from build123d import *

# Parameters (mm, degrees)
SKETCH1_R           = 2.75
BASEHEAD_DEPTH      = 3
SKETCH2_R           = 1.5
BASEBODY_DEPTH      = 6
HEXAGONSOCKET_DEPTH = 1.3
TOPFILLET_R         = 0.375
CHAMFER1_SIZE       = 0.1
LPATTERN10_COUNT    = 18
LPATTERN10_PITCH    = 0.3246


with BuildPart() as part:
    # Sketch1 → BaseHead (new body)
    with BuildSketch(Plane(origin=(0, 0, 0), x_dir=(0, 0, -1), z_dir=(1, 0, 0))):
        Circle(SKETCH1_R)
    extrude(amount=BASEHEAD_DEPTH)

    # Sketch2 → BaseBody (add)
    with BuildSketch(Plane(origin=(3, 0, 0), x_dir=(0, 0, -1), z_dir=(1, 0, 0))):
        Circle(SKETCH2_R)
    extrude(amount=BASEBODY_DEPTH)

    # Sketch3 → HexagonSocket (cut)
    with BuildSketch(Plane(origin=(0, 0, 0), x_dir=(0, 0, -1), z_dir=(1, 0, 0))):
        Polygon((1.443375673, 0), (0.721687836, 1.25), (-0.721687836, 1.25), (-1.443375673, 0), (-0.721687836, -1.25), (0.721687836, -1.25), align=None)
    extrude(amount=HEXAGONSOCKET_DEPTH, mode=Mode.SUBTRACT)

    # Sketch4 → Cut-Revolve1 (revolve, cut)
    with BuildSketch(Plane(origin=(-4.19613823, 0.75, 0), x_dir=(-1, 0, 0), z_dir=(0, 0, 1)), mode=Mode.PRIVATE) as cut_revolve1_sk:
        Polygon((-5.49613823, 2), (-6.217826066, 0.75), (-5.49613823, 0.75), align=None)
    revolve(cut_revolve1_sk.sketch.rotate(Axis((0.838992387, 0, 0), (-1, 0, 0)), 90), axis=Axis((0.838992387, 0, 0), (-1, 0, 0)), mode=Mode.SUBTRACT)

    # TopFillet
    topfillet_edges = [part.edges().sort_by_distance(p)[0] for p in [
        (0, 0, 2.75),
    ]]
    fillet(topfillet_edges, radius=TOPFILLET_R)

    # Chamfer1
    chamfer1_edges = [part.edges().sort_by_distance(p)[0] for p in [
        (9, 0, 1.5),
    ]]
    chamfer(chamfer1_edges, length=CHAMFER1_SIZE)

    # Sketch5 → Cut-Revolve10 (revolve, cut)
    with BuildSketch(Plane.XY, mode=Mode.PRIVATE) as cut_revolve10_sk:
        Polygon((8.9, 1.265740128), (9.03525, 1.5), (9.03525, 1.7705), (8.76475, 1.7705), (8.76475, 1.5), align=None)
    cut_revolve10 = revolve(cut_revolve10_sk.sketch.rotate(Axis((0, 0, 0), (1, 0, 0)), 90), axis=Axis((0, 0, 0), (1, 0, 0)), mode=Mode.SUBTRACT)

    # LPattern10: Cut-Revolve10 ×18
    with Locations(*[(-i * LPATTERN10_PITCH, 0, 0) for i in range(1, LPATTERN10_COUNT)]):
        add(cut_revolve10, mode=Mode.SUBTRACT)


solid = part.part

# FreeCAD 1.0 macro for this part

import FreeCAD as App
import Part
import Sketcher

V = App.Vector
Q = App.Units.Quantity


def edges_at(feature, points):
    """Names of the edges that pass closest to the given points."""
    edges = feature.Shape.Edges
    near = lambda p: min(range(len(edges)), key=lambda i: edges[i].distToShape(Part.Vertex(*p))[0])
    return sorted({f"Edge{near(p) + 1}" for p in points})


def add_polygon(sketch, points):
    """Adds a closed chain of lines whose ends are joined by coincident constraints."""
    first, n = sketch.GeometryCount, len(points)
    for a, b in zip(points, points[1:] + points[:1]):
        sketch.addGeometry(Part.LineSegment(App.Vector(*a, 0), App.Vector(*b, 0)), False)
    for i in range(n):
        sketch.addConstraint(Sketcher.Constraint("Coincident", first + i, 2, first + (i + 1) % n, 1))

doc = App.newDocument("Part")
body = doc.addObject("PartDesign::Body", "Body")

sketch1 = body.newObject("Sketcher::SketchObject", "Sketch")
sketch1.AttachmentSupport = (doc.getObject("YZ_Plane"), [""])
sketch1.MapMode = "FlatFace"
sketch1.addGeometry(Part.Circle(V(0, 0, 0), V(0, 0, 1), 2.8), False)
sketch1.addConstraint([
    Sketcher.Constraint("Coincident", 0, 3, -1, 1),
    Sketcher.Constraint("Diameter", 0, Q("5.5 mm")),
])
pad1 = body.newObject("PartDesign::Pad", "Pad")
pad1.Profile = sketch1
pad1.Length = 3

sketch2 = body.newObject("Sketcher::SketchObject", "Sketch001")
sketch2.AttachmentSupport = (doc.getObject("YZ_Plane"), [""])
sketch2.MapMode = "FlatFace"
sketch2.AttachmentOffset = App.Placement(V(0, 0, 3), App.Rotation())
sketch2.addGeometry(Part.Circle(V(0, 0, 0), V(0, 0, 1), 1.5), False)
sketch2.addConstraint([
    Sketcher.Constraint("Coincident", 0, 3, -1, 1),
    Sketcher.Constraint("Diameter", 0, Q("3 mm")),
])
pad2 = body.newObject("PartDesign::Pad", "Pad001")
pad2.Profile = sketch2
pad2.Length = 6

sketch3 = body.newObject("Sketcher::SketchObject", "Sketch002")
sketch3.AttachmentSupport = (doc.getObject("YZ_Plane"), [""])
sketch3.MapMode = "FlatFace"
add_polygon(sketch3, [(0, -1.4), (1.2, -0.7), (1.2, 0.7), (0, 1.4), (-1.2, 0.7), (-1.2, -0.7)])
sketch3.addConstraint([
    Sketcher.Constraint("Vertical", 1),
    Sketcher.Constraint("Vertical", 4),
    Sketcher.Constraint("Symmetric", 0, 2, 3, 2, -1, 1),
    Sketcher.Constraint("Symmetric", 2, 2, 5, 2, -1, 1),
    Sketcher.Constraint("PointOnObject", 2, 2, -2),
    Sketcher.Constraint("Parallel", 2, 5),
    Sketcher.Constraint("Horizontal", 1, 2, 3, 2),
    Sketcher.Constraint("Angle", 0, Q("30 deg")),
    Sketcher.Constraint("DistanceX", 3, 2, 1, 2, Q("2.5 mm")),
    Sketcher.Constraint("DistanceY", 1, 1, 1, 2, Q("1.443376 mm")),
])
pocket1 = body.newObject("PartDesign::Pocket", "Pocket")
pocket1.Profile = sketch3
pocket1.Length = 1.3
pocket1.Reversed = True

sketch4 = body.newObject("Sketcher::SketchObject", "Sketch003")
sketch4.AttachmentSupport = (doc.getObject("XY_Plane"), [""])
sketch4.MapMode = "FlatFace"
add_polygon(sketch4, [(1.3, -1.2), (2, 0), (1.3, 0)])
sketch4.addConstraint([
    Sketcher.Constraint("Horizontal", 1),
    Sketcher.Constraint("Vertical", 2),
    Sketcher.Constraint("PointOnObject", 0, 2, -1),
    Sketcher.Constraint("Angle", 0, Q("60 deg")),
    Sketcher.Constraint("DistanceY", 2, 2, 2, 1, Q("1.25 mm")),
    Sketcher.Constraint("DistanceX", -1, 1, 1, 2, Q("1.3 mm")),
])
groove = body.newObject("PartDesign::Groove", "Groove")
groove.Profile = sketch4
groove.ReferenceAxis = (sketch4, ["H_Axis"])
groove.Angle = 360
doc.recompute()

fillet = body.newObject("PartDesign::Fillet", "Fillet")
fillet.Base = (groove, edges_at(groove, [(0, 0, 2.75)]))
fillet.Radius = 0.375
doc.recompute()

chamfer = body.newObject("PartDesign::Chamfer", "Chamfer")
chamfer.Base = (fillet, edges_at(fillet, [(9, 0, 1.5)]))
chamfer.Size = 0.1

sketch5 = body.newObject("Sketcher::SketchObject", "Sketch004")
sketch5.AttachmentSupport = (doc.getObject("XY_Plane"), [""])
sketch5.MapMode = "FlatFace"
add_polygon(sketch5, [(8.9, 1.27), (9.04, 1.5), (9.04, 1.77), (8.76, 1.77), (8.76, 1.5)])
sketch5.addConstraint([
    Sketcher.Constraint("Vertical", 1),
    Sketcher.Constraint("Horizontal", 2),
    Sketcher.Constraint("Vertical", 3),
    Sketcher.Constraint("Horizontal", 0, 2, 3, 2),
    Sketcher.Constraint("Equal", 2, 1),
    Sketcher.Constraint("Equal", 0, 4),
    Sketcher.Constraint("Angle", 0, Q("60 deg")),
    Sketcher.Constraint("DistanceY", -1, 1, 0, 2, Q("1.5 mm")),
    Sketcher.Constraint("DistanceX", -1, 1, 4, 2, Q("8.9 mm")),
    Sketcher.Constraint("DistanceX", 2, 2, 2, 1, Q("0.2705 mm")),
])
groove2 = body.newObject("PartDesign::Groove", "Groove001")
groove2.Profile = sketch5
groove2.ReferenceAxis = (sketch5, ["H_Axis"])
groove2.Angle = 360
doc.recompute()

linearpattern = body.newObject("PartDesign::LinearPattern", "LinearPattern")
linearpattern.Originals = [groove2]
linearpattern.Direction = (doc.getObject("X_Axis"), [""])
linearpattern.Mode = "offset"
linearpattern.Offset = 0.3246
linearpattern.Occurrences = 18
linearpattern.Reversed = True
body.Tip = linearpattern

doc.recompute()
